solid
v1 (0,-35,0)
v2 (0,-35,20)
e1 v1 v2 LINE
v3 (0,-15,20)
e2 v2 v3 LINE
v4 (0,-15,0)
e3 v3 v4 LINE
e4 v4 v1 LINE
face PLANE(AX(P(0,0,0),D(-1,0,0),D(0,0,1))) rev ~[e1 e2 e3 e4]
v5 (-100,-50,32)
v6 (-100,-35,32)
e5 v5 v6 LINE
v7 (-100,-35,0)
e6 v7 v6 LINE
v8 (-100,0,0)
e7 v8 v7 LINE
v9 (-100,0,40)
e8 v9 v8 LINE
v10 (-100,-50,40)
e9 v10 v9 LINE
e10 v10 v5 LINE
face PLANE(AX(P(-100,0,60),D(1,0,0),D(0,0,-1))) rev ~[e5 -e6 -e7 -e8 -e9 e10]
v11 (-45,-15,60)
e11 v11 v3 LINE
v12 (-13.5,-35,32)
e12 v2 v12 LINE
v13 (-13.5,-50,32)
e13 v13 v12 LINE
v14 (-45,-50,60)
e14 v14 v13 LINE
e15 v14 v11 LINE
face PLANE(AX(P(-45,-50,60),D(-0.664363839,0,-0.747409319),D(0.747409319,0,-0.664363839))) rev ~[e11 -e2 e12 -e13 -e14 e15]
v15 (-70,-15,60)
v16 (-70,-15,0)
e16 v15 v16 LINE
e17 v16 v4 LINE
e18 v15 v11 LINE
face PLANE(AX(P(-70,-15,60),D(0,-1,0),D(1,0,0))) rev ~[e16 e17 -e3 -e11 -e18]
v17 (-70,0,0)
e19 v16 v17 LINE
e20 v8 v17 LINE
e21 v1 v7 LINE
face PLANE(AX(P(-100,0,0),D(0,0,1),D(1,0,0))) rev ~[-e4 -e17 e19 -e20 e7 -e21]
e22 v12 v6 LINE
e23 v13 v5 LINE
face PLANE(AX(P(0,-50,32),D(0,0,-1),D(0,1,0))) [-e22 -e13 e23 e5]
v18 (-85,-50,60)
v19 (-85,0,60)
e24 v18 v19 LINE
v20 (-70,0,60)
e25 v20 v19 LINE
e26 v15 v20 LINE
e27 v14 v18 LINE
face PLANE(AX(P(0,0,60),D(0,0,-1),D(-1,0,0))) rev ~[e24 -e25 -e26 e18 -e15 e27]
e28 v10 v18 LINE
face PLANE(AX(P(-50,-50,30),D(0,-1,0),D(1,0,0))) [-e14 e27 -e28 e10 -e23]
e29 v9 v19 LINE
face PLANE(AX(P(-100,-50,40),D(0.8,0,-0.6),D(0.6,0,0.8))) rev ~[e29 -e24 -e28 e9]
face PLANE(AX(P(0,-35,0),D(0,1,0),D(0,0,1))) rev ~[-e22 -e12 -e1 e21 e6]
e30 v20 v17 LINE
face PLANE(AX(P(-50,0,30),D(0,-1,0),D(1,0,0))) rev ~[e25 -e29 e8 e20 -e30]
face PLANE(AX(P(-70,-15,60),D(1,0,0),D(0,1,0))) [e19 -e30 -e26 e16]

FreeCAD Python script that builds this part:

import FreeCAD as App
import Part
import Sketcher
from FreeCAD import Vector
Q = App.Units.Quantity


def add_polygon(sketch, points):
    """Adds a closed chain of lines whose ends are joined by coincident constraints."""
    first, n = sketch.GeometryCount, len(points)
    for a, b in zip(points, points[1:] + points[:1]):
        sketch.addGeometry(Part.LineSegment(App.Vector(*a, 0), App.Vector(*b, 0)), False)
    for i in range(n):
        sketch.addConstraint(Sketcher.Constraint("Coincident", first + i, 2, first + (i + 1) % n, 1))

doc = App.newDocument("Part")
body = doc.addObject("PartDesign::Body", "Body")

# Sketch on XZ plane
sketch1 = doc.addObject("Sketcher::SketchObject", "Sketch")
body.addObject(sketch1)
sketch1.AttachmentSupport = (doc.XZ_Plane, [""])
sketch1.MapMode = "FlatFace"
add_polygon(sketch1, [(-100, 0), (0, 0), (0, 60), (-100, 60)])  # lines 0-3
sketch1.addConstraint([
    Sketcher.Constraint("Horizontal", 0),
    Sketcher.Constraint("Vertical", 1),
    Sketcher.Constraint("Horizontal", 2),
    Sketcher.Constraint("Vertical", 3),
    Sketcher.Constraint("Coincident", 0, 2, -1, 1),
    Sketcher.Constraint("DistanceX", 0, 1, 0, 2, Q("100 mm")),
    Sketcher.Constraint("DistanceY", 1, 1, 1, 2, Q("60 mm")),
])
pad1 = doc.addObject("PartDesign::Pad", "Pad")
body.addObject(pad1)
pad1.Profile = sketch1
pad1.Length = 50

# Sketch on YZ plane
sketch2 = doc.addObject("Sketcher::SketchObject", "Sketch001")
body.addObject(sketch2)
sketch2.AttachmentSupport = (doc.YZ_Plane, [""])
sketch2.MapMode = "FlatFace"
add_polygon(sketch2, [(-50, 32), (-50, 0), (-35, 0), (-35, 32)])  # lines 0-3
sketch2.addConstraint([
    Sketcher.Constraint("Vertical", 0),
    Sketcher.Constraint("Horizontal", 1),
    Sketcher.Constraint("Vertical", 2),
    Sketcher.Constraint("Horizontal", 3),
    Sketcher.Constraint("PointOnObject", 0, 2, -1),
    Sketcher.Constraint("DistanceX", 1, 1, 1, 2, Q("15 mm")),
    Sketcher.Constraint("DistanceY", 0, 2, 0, 1, Q("32 mm")),
    Sketcher.Constraint("DistanceX", 0, 2, -1, 1, Q("50 mm")),
])
pocket1 = doc.addObject("PartDesign::Pocket", "Pocket")
body.addObject(pocket1)
pocket1.Profile = sketch2
pocket1.Type = "ThroughAll"

# Sketch on XY plane
sketch3 = doc.addObject("Sketcher::SketchObject", "Sketch002")
body.addObject(sketch3)
sketch3.AttachmentSupport = (doc.XY_Plane, [""])
sketch3.MapMode = "FlatFace"
sketch3.AttachmentOffset = App.Placement(Vector(0, 0, 60), App.Rotation())
add_polygon(sketch3, [(-70, 0), (-70, -15), (0, -15), (0, 0)])  # lines 0-3
sketch3.addConstraint([
    Sketcher.Constraint("Vertical", 0),
    Sketcher.Constraint("Horizontal", 1),
    Sketcher.Constraint("Vertical", 2),
    Sketcher.Constraint("Horizontal", 3),
    Sketcher.Constraint("Coincident", 2, 2, -1, 1),
    Sketcher.Constraint("DistanceX", 1, 1, 1, 2, Q("70 mm")),
    Sketcher.Constraint("DistanceY", 0, 2, 0, 1, Q("15 mm")),
])
pocket2 = doc.addObject("PartDesign::Pocket", "Pocket001")
body.addObject(pocket2)
pocket2.Profile = sketch3
pocket2.Type = "ThroughAll"

# Sketch on XZ plane
sketch4 = doc.addObject("Sketcher::SketchObject", "Sketch003")
body.addObject(sketch4)
sketch4.AttachmentSupport = (doc.XZ_Plane, [""])
sketch4.MapMode = "FlatFace"
sketch4.AttachmentOffset = App.Placement(Vector(0, 0, 50), App.Rotation())
add_polygon(sketch4, [(-85, 60), (-100, 60), (-100, 40)])  # lines 0-2
sketch4.addConstraint([
    Sketcher.Constraint("Horizontal", 0),
    Sketcher.Constraint("Vertical", 1),
    Sketcher.Constraint("DistanceX", 0, 2, 0, 1, Q("15 mm")),
    Sketcher.Constraint("DistanceY", 1, 2, 1, 1, Q("20 mm")),
    Sketcher.Constraint("DistanceX", 0, 2, -1, 1, Q("100 mm")),
    Sketcher.Constraint("DistanceY", -1, 1, 0, 2, Q("60 mm")),
])
pocket3 = doc.addObject("PartDesign::Pocket", "Pocket002")
body.addObject(pocket3)
pocket3.Profile = sketch4
pocket3.Type = "ThroughAll"

# Sketch on XZ plane
sketch5 = doc.addObject("Sketcher::SketchObject", "Sketch004")
body.addObject(sketch5)
sketch5.AttachmentSupport = (doc.XZ_Plane, [""])
sketch5.MapMode = "FlatFace"
sketch5.AttachmentOffset = App.Placement(Vector(0, 0, 50), App.Rotation())
add_polygon(sketch5, [(0, 20), (0, 60), (-45, 60)])  # lines 0-2
sketch5.addConstraint([
    Sketcher.Constraint("Vertical", 0),
    Sketcher.Constraint("Horizontal", 1),
    Sketcher.Constraint("PointOnObject", 0, 2, -2),
    Sketcher.Constraint("DistanceX", 1, 2, 1, 1, Q("45 mm")),
    Sketcher.Constraint("DistanceY", 0, 1, 0, 2, Q("40 mm")),
    Sketcher.Constraint("DistanceY", -1, 1, 0, 2, Q("60 mm")),
])
pocket4 = doc.addObject("PartDesign::Pocket", "Pocket003")
body.addObject(pocket4)
pocket4.Profile = sketch5
pocket4.Type = "ThroughAll"

doc.recompute()
